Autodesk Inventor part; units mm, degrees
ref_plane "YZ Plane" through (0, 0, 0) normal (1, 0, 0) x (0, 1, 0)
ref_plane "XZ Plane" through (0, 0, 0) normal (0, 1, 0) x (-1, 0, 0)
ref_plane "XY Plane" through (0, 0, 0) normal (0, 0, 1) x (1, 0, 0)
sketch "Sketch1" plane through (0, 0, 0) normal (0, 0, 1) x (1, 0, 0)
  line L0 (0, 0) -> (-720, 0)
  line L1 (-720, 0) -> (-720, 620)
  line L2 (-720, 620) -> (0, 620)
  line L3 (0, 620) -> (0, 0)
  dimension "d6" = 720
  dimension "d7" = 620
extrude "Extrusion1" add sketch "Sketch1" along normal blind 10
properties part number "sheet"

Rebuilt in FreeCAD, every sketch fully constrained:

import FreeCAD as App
import Part
import Sketcher
from FreeCAD import Vector


def add_polygon(sketch, points):
    """Adds a closed chain of lines whose ends are joined by coincident constraints."""
    first, n = sketch.GeometryCount, len(points)
    for a, b in zip(points, points[1:] + points[:1]):
        sketch.addGeometry(Part.LineSegment(App.Vector(*a, 0), App.Vector(*b, 0)), False)
    for i in range(n):
        sketch.addConstraint(Sketcher.Constraint("Coincident", first + i, 2, first + (i + 1) % n, 1))

doc = App.newDocument("Part")
body = doc.addObject("PartDesign::Body", "Body")

sketch1 = body.newObject("Sketcher::SketchObject", "Sketch")
sketch1.AttachmentSupport = (doc.getObject("XY_Plane"), [""])
sketch1.MapMode = "FlatFace"
add_polygon(sketch1, [(-720, 0), (0, 0), (0, 620), (-720, 620)])
sketch1.addConstraint(Sketcher.Constraint("Horizontal", 0))
sketch1.addConstraint(Sketcher.Constraint("Vertical", 1))
sketch1.addConstraint(Sketcher.Constraint("Horizontal", 2))
sketch1.addConstraint(Sketcher.Constraint("Vertical", 3))
sketch1.addConstraint(Sketcher.Constraint("Coincident", 0, 2, -1, 1))
sketch1.addConstraint(Sketcher.Constraint("DistanceX", 0, 1, 0, 2, 720.0))
sketch1.addConstraint(Sketcher.Constraint("DistanceY", 1, 1, 1, 2, 620.0))
pad1 = body.newObject("PartDesign::Pad", "Pad")
pad1.Profile = sketch1
pad1.Length = 10

doc.recompute()
